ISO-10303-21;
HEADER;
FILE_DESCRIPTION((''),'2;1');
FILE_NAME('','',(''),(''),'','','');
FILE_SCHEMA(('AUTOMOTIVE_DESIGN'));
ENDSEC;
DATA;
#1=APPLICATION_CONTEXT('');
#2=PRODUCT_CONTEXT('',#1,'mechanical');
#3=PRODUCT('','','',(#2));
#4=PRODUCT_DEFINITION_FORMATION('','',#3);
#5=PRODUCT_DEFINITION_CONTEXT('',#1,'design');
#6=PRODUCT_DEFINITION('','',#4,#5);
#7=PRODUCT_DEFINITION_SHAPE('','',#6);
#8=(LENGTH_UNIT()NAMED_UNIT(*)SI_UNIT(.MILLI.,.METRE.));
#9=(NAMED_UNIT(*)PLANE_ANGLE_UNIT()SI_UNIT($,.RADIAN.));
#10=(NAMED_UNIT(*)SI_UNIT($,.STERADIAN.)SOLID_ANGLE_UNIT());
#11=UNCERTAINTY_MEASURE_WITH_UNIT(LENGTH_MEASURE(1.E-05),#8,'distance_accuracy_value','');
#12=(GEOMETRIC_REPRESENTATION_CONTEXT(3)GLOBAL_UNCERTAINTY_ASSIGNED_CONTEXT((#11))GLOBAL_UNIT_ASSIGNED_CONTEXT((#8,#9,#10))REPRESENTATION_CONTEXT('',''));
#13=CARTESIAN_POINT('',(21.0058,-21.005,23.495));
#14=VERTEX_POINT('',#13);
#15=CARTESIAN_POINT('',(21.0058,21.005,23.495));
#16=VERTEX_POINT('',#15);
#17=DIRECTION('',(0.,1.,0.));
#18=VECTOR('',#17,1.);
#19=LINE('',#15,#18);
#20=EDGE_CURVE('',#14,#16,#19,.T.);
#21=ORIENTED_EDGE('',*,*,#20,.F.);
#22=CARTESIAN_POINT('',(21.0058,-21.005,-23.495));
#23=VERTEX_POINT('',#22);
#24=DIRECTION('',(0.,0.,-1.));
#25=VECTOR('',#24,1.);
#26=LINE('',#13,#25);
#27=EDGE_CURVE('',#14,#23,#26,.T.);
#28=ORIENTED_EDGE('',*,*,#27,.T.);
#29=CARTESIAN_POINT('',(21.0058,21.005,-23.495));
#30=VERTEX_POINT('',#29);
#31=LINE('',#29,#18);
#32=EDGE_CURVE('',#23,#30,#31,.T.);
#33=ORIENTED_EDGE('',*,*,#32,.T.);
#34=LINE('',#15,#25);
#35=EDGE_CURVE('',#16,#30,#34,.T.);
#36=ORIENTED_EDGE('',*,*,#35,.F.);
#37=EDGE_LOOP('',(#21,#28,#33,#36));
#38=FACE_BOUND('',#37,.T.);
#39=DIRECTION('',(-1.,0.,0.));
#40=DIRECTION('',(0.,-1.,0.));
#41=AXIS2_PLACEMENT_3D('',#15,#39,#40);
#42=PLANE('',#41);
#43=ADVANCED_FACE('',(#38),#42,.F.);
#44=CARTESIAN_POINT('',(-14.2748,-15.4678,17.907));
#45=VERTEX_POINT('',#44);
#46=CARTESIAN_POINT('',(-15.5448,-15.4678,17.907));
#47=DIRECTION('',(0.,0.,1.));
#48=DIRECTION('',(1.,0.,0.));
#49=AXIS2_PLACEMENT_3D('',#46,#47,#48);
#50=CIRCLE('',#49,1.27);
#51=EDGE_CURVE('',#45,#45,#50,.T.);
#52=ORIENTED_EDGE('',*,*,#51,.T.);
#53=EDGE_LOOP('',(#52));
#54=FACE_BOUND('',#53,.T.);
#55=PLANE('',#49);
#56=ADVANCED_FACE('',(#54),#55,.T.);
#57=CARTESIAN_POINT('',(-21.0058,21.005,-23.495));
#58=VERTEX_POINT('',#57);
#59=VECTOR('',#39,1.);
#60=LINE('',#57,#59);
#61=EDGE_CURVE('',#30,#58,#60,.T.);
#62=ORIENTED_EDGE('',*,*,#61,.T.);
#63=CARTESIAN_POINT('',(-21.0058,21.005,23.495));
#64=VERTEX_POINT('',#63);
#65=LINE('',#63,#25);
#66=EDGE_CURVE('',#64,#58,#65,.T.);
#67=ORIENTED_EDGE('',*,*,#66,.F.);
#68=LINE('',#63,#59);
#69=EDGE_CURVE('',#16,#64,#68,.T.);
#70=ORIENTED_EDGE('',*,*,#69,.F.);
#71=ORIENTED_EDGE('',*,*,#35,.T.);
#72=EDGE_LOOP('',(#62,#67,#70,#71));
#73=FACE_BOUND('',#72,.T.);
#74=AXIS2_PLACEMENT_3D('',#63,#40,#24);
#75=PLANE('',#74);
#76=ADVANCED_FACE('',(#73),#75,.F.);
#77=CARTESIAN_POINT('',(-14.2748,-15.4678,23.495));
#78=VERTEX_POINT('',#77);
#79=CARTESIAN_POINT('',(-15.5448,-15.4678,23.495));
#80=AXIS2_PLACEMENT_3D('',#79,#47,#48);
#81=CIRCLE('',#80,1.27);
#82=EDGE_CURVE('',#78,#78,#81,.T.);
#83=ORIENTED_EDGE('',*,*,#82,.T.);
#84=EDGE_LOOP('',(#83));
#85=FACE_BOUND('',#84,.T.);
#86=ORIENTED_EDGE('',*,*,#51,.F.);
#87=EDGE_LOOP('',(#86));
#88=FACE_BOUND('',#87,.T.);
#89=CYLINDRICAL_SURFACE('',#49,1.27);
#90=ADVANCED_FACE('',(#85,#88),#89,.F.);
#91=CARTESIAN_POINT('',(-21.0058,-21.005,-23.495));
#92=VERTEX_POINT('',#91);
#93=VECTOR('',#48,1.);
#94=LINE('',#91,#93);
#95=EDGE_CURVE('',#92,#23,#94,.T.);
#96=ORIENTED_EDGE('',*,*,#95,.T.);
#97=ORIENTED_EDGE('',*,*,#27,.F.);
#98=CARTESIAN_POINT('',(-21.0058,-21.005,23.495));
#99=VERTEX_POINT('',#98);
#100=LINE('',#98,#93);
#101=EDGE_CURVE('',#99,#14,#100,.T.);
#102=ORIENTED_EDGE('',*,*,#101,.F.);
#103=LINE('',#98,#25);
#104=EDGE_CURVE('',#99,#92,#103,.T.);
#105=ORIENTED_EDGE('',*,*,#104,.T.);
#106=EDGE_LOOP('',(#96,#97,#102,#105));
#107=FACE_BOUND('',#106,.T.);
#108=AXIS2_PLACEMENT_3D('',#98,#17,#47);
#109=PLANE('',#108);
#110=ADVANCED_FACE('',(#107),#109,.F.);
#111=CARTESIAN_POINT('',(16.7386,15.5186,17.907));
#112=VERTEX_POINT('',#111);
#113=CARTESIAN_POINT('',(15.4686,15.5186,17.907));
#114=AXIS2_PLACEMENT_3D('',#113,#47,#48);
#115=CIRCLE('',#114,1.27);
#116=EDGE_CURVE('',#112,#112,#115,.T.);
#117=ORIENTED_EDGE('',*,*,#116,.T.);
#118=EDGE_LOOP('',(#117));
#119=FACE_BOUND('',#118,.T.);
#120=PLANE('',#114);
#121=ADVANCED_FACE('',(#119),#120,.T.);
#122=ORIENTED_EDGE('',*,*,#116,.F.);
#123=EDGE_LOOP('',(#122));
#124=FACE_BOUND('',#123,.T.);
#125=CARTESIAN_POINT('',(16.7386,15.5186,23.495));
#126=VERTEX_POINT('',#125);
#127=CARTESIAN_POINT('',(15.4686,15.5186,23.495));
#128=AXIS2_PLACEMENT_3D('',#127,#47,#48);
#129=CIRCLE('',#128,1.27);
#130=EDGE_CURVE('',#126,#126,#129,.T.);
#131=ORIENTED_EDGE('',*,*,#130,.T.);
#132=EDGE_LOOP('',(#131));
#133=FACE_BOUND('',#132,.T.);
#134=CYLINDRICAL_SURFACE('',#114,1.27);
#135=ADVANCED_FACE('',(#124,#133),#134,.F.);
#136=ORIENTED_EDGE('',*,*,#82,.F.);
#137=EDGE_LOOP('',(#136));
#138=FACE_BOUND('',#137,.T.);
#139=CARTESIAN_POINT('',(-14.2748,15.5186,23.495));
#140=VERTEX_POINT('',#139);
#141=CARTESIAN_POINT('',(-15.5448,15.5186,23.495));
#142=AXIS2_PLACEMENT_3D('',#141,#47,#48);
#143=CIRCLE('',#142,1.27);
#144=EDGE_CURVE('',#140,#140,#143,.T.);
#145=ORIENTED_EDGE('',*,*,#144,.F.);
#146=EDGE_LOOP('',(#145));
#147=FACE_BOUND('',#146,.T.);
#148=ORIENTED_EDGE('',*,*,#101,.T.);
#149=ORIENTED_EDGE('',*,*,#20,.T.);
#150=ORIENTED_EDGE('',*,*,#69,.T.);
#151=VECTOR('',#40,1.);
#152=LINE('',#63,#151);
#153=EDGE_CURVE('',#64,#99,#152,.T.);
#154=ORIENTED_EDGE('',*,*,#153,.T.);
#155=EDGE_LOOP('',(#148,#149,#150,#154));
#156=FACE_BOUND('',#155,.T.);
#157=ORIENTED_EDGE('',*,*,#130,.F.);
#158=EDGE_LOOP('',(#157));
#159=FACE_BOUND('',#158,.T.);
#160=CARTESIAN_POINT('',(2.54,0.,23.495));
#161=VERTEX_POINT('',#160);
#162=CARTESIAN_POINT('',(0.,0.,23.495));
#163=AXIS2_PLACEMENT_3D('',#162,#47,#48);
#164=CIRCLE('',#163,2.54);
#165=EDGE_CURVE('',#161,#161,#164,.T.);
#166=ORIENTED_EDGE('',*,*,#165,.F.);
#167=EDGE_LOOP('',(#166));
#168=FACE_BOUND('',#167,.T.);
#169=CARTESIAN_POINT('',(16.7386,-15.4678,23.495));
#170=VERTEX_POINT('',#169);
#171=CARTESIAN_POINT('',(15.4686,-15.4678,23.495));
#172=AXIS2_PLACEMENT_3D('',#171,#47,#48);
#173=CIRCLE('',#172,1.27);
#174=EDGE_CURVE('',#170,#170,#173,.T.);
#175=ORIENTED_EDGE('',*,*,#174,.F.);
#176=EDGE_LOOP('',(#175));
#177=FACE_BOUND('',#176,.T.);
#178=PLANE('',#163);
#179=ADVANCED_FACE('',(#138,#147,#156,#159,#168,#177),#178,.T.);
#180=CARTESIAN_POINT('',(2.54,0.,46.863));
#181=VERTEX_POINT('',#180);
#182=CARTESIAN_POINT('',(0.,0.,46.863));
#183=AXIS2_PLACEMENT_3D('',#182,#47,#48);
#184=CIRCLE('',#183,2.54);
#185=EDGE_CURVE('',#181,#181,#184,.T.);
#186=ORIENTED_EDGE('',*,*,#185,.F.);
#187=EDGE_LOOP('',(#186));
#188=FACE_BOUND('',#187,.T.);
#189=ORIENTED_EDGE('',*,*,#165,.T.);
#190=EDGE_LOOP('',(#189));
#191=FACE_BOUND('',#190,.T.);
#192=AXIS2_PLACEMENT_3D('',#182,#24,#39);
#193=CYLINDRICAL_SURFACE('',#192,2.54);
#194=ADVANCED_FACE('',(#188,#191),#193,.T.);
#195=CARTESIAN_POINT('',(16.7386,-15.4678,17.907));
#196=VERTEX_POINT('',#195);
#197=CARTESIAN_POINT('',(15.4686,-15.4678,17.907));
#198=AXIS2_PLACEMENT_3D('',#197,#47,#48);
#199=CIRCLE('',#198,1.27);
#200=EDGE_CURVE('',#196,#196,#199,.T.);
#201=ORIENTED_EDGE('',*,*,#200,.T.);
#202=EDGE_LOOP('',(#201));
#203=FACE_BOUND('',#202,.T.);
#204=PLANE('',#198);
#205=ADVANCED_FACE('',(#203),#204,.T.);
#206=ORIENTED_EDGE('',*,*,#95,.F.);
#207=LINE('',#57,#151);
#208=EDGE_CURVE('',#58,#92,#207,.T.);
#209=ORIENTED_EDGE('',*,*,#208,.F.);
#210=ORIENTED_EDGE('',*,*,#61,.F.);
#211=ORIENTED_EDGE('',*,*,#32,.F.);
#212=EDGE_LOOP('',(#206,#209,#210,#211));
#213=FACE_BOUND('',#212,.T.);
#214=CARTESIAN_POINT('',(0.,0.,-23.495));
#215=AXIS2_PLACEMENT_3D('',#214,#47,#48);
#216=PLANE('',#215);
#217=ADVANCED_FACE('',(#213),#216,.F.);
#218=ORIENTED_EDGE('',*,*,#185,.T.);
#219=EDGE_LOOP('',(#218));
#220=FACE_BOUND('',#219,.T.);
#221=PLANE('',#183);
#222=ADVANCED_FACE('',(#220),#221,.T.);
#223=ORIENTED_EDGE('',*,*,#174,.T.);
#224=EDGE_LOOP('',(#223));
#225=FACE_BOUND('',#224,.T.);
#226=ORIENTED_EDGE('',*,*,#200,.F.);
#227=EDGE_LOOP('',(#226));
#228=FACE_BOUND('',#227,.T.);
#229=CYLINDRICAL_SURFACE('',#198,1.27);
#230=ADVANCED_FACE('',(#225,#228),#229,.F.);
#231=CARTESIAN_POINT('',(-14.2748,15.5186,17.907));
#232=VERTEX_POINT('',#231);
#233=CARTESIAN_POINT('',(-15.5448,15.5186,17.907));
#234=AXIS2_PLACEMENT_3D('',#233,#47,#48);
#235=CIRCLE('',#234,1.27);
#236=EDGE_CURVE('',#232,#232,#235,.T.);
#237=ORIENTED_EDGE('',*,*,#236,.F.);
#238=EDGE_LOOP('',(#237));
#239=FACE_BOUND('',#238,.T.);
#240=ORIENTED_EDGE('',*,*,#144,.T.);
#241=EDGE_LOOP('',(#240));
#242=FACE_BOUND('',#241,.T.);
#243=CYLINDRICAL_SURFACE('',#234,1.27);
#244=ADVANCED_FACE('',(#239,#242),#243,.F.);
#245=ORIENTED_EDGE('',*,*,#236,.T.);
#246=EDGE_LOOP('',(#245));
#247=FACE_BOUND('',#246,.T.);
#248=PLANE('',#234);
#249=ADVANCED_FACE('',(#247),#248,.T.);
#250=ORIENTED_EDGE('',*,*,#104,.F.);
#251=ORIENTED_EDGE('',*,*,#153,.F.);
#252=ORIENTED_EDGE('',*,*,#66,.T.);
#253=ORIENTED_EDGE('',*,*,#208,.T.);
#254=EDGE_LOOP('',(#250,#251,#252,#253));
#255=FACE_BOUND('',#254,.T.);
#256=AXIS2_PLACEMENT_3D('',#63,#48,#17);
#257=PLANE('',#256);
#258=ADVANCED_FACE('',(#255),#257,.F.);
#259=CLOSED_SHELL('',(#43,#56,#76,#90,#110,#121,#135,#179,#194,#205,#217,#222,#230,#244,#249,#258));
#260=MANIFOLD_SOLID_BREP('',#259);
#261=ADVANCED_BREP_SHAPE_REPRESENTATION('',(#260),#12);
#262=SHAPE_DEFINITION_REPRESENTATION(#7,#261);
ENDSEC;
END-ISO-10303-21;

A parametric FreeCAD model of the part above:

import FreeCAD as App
import Part
import Sketcher

V = App.Vector
Q = App.Units.Quantity

doc = App.newDocument("Part")
params = doc.addObject("Spreadsheet::Sheet", "Params")
for row, (alias, value) in enumerate([
    ("sketch1_width", "1.654 in"),
    ("pad1_length", "1.85 in"),
    ("sketch2_diameter", "0.2 in"),
    ("pad2_length", "0.92 in"),
    ("sketch3_diameter", "0.1 in"),
    ("pocket1_length", "0.22 in"),
], start=1):
    params.set(f"A{row}", alias)
    params.set(f"B{row}", "=" + value)
    params.setAlias(f"B{row}", alias)

body = doc.addObject("PartDesign::Body", "Body")

sketch1 = body.newObject("Sketcher::SketchObject", "Sketch")
sketch1.AttachmentSupport = (doc.getObject("XY_Plane"), [""])
sketch1.MapMode = "FlatFace"
sketch1.addGeometry([
    Part.LineSegment(V(-21.0058, 21.005, 0), V(-21.0058, -21.005, 0)),
    Part.LineSegment(V(-21.0058, -21.005, 0), V(21.0058, -21.005, 0)),
    Part.LineSegment(V(21.0058, -21.005, 0), V(21.0058, 21.005, 0)),
    Part.LineSegment(V(21.0058, 21.005, 0), V(-21.0058, 21.005, 0)),
], False)
sketch1.addConstraint([
    Sketcher.Constraint("Coincident", 0, 2, 1, 1),
    Sketcher.Constraint("Coincident", 1, 2, 2, 1),
    Sketcher.Constraint("Coincident", 2, 2, 3, 1),
    Sketcher.Constraint("Coincident", 3, 2, 0, 1),
    Sketcher.Constraint("Vertical", 0),
    Sketcher.Constraint("Horizontal", 1),
    Sketcher.Constraint("Vertical", 2),
    Sketcher.Constraint("Horizontal", 3),
    Sketcher.Constraint("Symmetric", 0, 2, 2, 2, -1, 1),
    Sketcher.Constraint("DistanceX", 1, 1, 1, 2, Q("1.654 in")),
    Sketcher.Constraint("DistanceY", 0, 2, 0, 1, Q("42.01 mm")),
])
sketch1.setExpression("Constraints[9]", "Params.sketch1_width")
pad1 = body.newObject("PartDesign::Pad", "Pad")
pad1.Profile = sketch1
pad1.setExpression("Length", "Params.pad1_length")
pad1.Midplane = True

sketch2 = body.newObject("Sketcher::SketchObject", "Sketch001")
sketch2.AttachmentSupport = (doc.getObject("XY_Plane"), [""])
sketch2.MapMode = "FlatFace"
sketch2.AttachmentOffset = App.Placement(V(0, 0, 0.925 * 25.4), App.Rotation())
sketch2.addGeometry(Part.Circle(V(0, 0, 0), V(0, 0, 1), 2.54), False)
sketch2.addConstraint([
    Sketcher.Constraint("Coincident", 0, 3, -1, 1),
    Sketcher.Constraint("Diameter", 0, Q("0.2 in")),
])
sketch2.setExpression("Constraints[1]", "Params.sketch2_diameter")
pad2 = body.newObject("PartDesign::Pad", "Pad001")
pad2.Profile = sketch2
pad2.setExpression("Length", "Params.pad2_length")

sketch3 = body.newObject("Sketcher::SketchObject", "Sketch002")
sketch3.AttachmentSupport = (doc.getObject("XY_Plane"), [""])
sketch3.MapMode = "FlatFace"
sketch3.AttachmentOffset = App.Placement(V(0, 0, 0.925 * 25.4), App.Rotation())
sketch3.addGeometry([
    Part.Circle(V(15.4686, -15.4678, 0), V(0, 0, 1), 1.27),
    Part.Circle(V(-15.5448, 15.5186, 0), V(0, 0, 1), 1.27),
    Part.Circle(V(15.4686, 15.5186, 0), V(0, 0, 1), 1.27),
    Part.Circle(V(-15.5448, -15.4678, 0), V(0, 0, 1), 1.27),
], False)
sketch3.addConstraint([
    Sketcher.Constraint("Equal", 0, 1),
    Sketcher.Constraint("Equal", 1, 2),
    Sketcher.Constraint("Equal", 2, 3),
    Sketcher.Constraint("Horizontal", 1, 3, 2, 3),
    Sketcher.Constraint("Horizontal", 0, 3, 3, 3),
    Sketcher.Constraint("Vertical", 0, 3, 2, 3),
    Sketcher.Constraint("Vertical", 1, 3, 3, 3),
    Sketcher.Constraint("Diameter", 0, Q("0.1 in")),
    Sketcher.Constraint("DistanceX", -1, 1, 0, 3, Q("0.609 in")),
    Sketcher.Constraint("DistanceX", 1, 3, -1, 1, Q("0.612 in")),
    Sketcher.Constraint("DistanceY", 0, 3, -1, 1, Q("15.4678 mm")),
    Sketcher.Constraint("DistanceY", -1, 1, 1, 3, Q("15.5186 mm")),
])
sketch3.setExpression("Constraints[7]", "Params.sketch3_diameter")
pocket1 = body.newObject("PartDesign::Pocket", "Pocket")
pocket1.Profile = sketch3
pocket1.setExpression("Length", "Params.pocket1_length")

doc.recompute()
